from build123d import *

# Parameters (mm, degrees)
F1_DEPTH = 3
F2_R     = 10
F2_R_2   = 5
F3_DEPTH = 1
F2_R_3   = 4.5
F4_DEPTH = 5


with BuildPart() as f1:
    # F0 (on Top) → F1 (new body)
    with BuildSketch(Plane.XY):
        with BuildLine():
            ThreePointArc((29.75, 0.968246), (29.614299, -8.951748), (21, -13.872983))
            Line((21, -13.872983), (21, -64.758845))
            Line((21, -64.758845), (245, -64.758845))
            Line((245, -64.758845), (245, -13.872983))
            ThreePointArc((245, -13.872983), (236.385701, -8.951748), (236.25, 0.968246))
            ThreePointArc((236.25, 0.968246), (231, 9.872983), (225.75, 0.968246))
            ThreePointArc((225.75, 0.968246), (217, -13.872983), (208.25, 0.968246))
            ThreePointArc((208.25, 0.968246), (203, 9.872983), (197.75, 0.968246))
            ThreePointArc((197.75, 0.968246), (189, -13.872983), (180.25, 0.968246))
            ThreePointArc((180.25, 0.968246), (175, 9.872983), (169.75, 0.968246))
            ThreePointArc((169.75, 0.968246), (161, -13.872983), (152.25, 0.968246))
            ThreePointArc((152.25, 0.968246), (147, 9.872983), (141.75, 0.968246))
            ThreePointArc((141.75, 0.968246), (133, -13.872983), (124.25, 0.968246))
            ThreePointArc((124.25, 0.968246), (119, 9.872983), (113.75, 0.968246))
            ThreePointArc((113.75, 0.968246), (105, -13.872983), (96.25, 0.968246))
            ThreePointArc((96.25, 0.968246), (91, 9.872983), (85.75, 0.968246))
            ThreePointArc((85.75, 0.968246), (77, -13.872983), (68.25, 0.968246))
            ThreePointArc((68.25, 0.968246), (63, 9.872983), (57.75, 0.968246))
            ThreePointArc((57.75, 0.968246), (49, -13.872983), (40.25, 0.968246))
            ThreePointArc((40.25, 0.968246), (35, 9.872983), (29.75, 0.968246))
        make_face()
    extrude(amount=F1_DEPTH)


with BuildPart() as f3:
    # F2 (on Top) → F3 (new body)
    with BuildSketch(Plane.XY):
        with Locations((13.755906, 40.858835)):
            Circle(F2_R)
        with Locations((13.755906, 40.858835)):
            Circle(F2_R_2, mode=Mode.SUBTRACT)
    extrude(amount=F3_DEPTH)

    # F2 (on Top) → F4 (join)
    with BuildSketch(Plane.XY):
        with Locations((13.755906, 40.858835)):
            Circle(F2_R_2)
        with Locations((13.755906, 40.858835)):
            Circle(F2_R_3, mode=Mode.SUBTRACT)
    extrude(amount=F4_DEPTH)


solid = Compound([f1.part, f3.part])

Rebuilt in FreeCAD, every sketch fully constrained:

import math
import FreeCAD as App
import Part
import Sketcher

doc = App.newDocument("Part")
body = doc.addObject("PartDesign::Body", "Body")

# Sketch on XY plane
sketch1 = body.newObject("Sketcher::SketchObject", "Sketch")
sketch1.AttachmentSupport = (doc.getObject("XY_Plane"), [""])
sketch1.MapMode = "FlatFace"
sketch1.addGeometry(Part.ArcOfCircle(Part.Circle(App.Vector(21, -3.872983, 0), App.Vector(0, 0, 1), 10), math.radians(-90.000001), math.radians(28.955025)), False)
sketch1.addGeometry(Part.LineSegment(App.Vector(21, -13.872983, 0), App.Vector(21, -64.758845, 0)), False)
sketch1.addGeometry(Part.LineSegment(App.Vector(21, -64.758845, 0), App.Vector(245, -64.758845, 0)), False)
sketch1.addGeometry(Part.LineSegment(App.Vector(245, -64.758845, 0), App.Vector(245, -13.872983, 0)), False)
sketch1.addGeometry(Part.ArcOfCircle(Part.Circle(App.Vector(245, -3.872983, 0), App.Vector(0, 0, 1), 10), math.radians(151.044975), math.radians(270.000001)), False)
sketch1.addGeometry(Part.ArcOfCircle(Part.Circle(App.Vector(231, 3.872983, 0), App.Vector(0, 0, 1), 6), math.radians(-28.955022), math.radians(208.955022)), False)
sketch1.addGeometry(Part.ArcOfCircle(Part.Circle(App.Vector(217, -3.872983, 0), App.Vector(0, 0, 1), 10), math.radians(151.044976), math.radians(388.955024)), False)
sketch1.addGeometry(Part.ArcOfCircle(Part.Circle(App.Vector(203, 3.872983, 0), App.Vector(0, 0, 1), 6), math.radians(-28.955022), math.radians(208.955022)), False)
sketch1.addGeometry(Part.ArcOfCircle(Part.Circle(App.Vector(189, -3.872983, 0), App.Vector(0, 0, 1), 10), math.radians(151.044976), math.radians(388.955024)), False)
sketch1.addGeometry(Part.ArcOfCircle(Part.Circle(App.Vector(175, 3.872983, 0), App.Vector(0, 0, 1), 6), math.radians(-28.955022), math.radians(208.955022)), False)
sketch1.addGeometry(Part.ArcOfCircle(Part.Circle(App.Vector(161, -3.872983, 0), App.Vector(0, 0, 1), 10), math.radians(151.044976), math.radians(388.955024)), False)
sketch1.addGeometry(Part.ArcOfCircle(Part.Circle(App.Vector(147, 3.872983, 0), App.Vector(0, 0, 1), 6), math.radians(-28.955022), math.radians(208.955022)), False)
sketch1.addGeometry(Part.ArcOfCircle(Part.Circle(App.Vector(133, -3.872983, 0), App.Vector(0, 0, 1), 10), math.radians(151.044976), math.radians(388.955024)), False)
sketch1.addGeometry(Part.ArcOfCircle(Part.Circle(App.Vector(119, 3.872983, 0), App.Vector(0, 0, 1), 6), math.radians(-28.955022), math.radians(208.955022)), False)
sketch1.addGeometry(Part.ArcOfCircle(Part.Circle(App.Vector(105, -3.872983, 0), App.Vector(0, 0, 1), 10), math.radians(151.044976), math.radians(388.955024)), False)
sketch1.addGeometry(Part.ArcOfCircle(Part.Circle(App.Vector(91, 3.872983, 0), App.Vector(0, 0, 1), 6), math.radians(-28.955022), math.radians(208.955022)), False)
sketch1.addGeometry(Part.ArcOfCircle(Part.Circle(App.Vector(77, -3.872983, 0), App.Vector(0, 0, 1), 10), math.radians(151.044976), math.radians(388.955024)), False)
sketch1.addGeometry(Part.ArcOfCircle(Part.Circle(App.Vector(63, 3.872983, 0), App.Vector(0, 0, 1), 6), math.radians(-28.955022), math.radians(208.955022)), False)
sketch1.addGeometry(Part.ArcOfCircle(Part.Circle(App.Vector(49, -3.872983, 0), App.Vector(0, 0, 1), 10), math.radians(151.044976), math.radians(388.955024)), False)
sketch1.addGeometry(Part.ArcOfCircle(Part.Circle(App.Vector(35, 3.872983, 0), App.Vector(0, 0, 1), 6), math.radians(-28.955022), math.radians(208.955022)), False)
sketch1.addConstraint(Sketcher.Constraint("Coincident", 0, 1, 1, 1))
sketch1.addConstraint(Sketcher.Constraint("Coincident", 1, 2, 2, 1))
sketch1.addConstraint(Sketcher.Constraint("Coincident", 2, 2, 3, 1))
sketch1.addConstraint(Sketcher.Constraint("Coincident", 3, 2, 4, 2))
sketch1.addConstraint(Sketcher.Constraint("Tangent", 4, 1, 5, 1))
sketch1.addConstraint(Sketcher.Constraint("Tangent", 5, 2, 6, 2))
sketch1.addConstraint(Sketcher.Constraint("Tangent", 6, 1, 7, 1))
sketch1.addConstraint(Sketcher.Constraint("Tangent", 7, 2, 8, 2))
sketch1.addConstraint(Sketcher.Constraint("Tangent", 8, 1, 9, 1))
sketch1.addConstraint(Sketcher.Constraint("Tangent", 9, 2, 10, 2))
sketch1.addConstraint(Sketcher.Constraint("Tangent", 10, 1, 11, 1))
sketch1.addConstraint(Sketcher.Constraint("Tangent", 11, 2, 12, 2))
sketch1.addConstraint(Sketcher.Constraint("Tangent", 12, 1, 13, 1))
sketch1.addConstraint(Sketcher.Constraint("Tangent", 13, 2, 14, 2))
sketch1.addConstraint(Sketcher.Constraint("Tangent", 14, 1, 15, 1))
sketch1.addConstraint(Sketcher.Constraint("Tangent", 15, 2, 16, 2))
sketch1.addConstraint(Sketcher.Constraint("Tangent", 16, 1, 17, 1))
sketch1.addConstraint(Sketcher.Constraint("Tangent", 17, 2, 18, 2))
sketch1.addConstraint(Sketcher.Constraint("Tangent", 18, 1, 19, 1))
sketch1.addConstraint(Sketcher.Constraint("Tangent", 19, 2, 0, 2))
sketch1.addConstraint(Sketcher.Constraint("Vertical", 1))
sketch1.addConstraint(Sketcher.Constraint("Horizontal", 2))
sketch1.addConstraint(Sketcher.Constraint("Vertical", 3))
sketch1.addConstraint(Sketcher.Constraint("Equal", 0, 4))
sketch1.addConstraint(Sketcher.Constraint("Equal", 4, 6))
sketch1.addConstraint(Sketcher.Constraint("Equal", 5, 7))
sketch1.addConstraint(Sketcher.Constraint("Equal", 6, 8))
sketch1.addConstraint(Sketcher.Constraint("Equal", 7, 9))
sketch1.addConstraint(Sketcher.Constraint("Equal", 8, 10))
sketch1.addConstraint(Sketcher.Constraint("Equal", 9, 11))
sketch1.addConstraint(Sketcher.Constraint("Equal", 10, 12))
sketch1.addConstraint(Sketcher.Constraint("Equal", 11, 13))
sketch1.addConstraint(Sketcher.Constraint("Equal", 12, 14))
sketch1.addConstraint(Sketcher.Constraint("Equal", 13, 15))
sketch1.addConstraint(Sketcher.Constraint("Equal", 14, 16))
sketch1.addConstraint(Sketcher.Constraint("Equal", 15, 17))
sketch1.addConstraint(Sketcher.Constraint("Equal", 16, 18))
sketch1.addConstraint(Sketcher.Constraint("Equal", 17, 19))
sketch1.addConstraint(Sketcher.Constraint("Horizontal", 0, 3, 4, 3))
sketch1.addConstraint(Sketcher.Constraint("Horizontal", 4, 3, 6, 3))
sketch1.addConstraint(Sketcher.Constraint("Horizontal", 5, 3, 7, 3))
sketch1.addConstraint(Sketcher.Constraint("Horizontal", 6, 3, 8, 3))
sketch1.addConstraint(Sketcher.Constraint("Horizontal", 7, 3, 9, 3))
sketch1.addConstraint(Sketcher.Constraint("Horizontal", 8, 3, 10, 3))
sketch1.addConstraint(Sketcher.Constraint("Horizontal", 9, 3, 11, 3))
sketch1.addConstraint(Sketcher.Constraint("Horizontal", 10, 3, 12, 3))
sketch1.addConstraint(Sketcher.Constraint("Horizontal", 11, 3, 13, 3))
sketch1.addConstraint(Sketcher.Constraint("Horizontal", 12, 3, 14, 3))
sketch1.addConstraint(Sketcher.Constraint("Horizontal", 13, 3, 15, 3))
sketch1.addConstraint(Sketcher.Constraint("Horizontal", 14, 3, 16, 3))
sketch1.addConstraint(Sketcher.Constraint("Horizontal", 15, 3, 17, 3))
sketch1.addConstraint(Sketcher.Constraint("Horizontal", 16, 3, 18, 3))
sketch1.addConstraint(Sketcher.Constraint("Horizontal", 17, 3, 19, 3))
sketch1.addConstraint(Sketcher.Constraint("Vertical", 4, 3, 2, 2))
sketch1.addConstraint(Sketcher.Constraint("Radius", 0, 10.0))
sketch1.addConstraint(Sketcher.Constraint("Radius", 5, 6.0))
sketch1.addConstraint(Sketcher.Constraint("DistanceX", 2, 1, 2, 2, 224.0))
sketch1.addConstraint(Sketcher.Constraint("DistanceX", -1, 1, 0, 3, 21.0))
sketch1.addConstraint(Sketcher.Constraint("DistanceX", -1, 1, 4, 3, 245.0))
sketch1.addConstraint(Sketcher.Constraint("DistanceY", 1, 2, 1, 1, 50.885862))
sketch1.addConstraint(Sketcher.Constraint("DistanceY", 0, 3, -1, 1, 3.872983))
pad1 = body.newObject("PartDesign::Pad", "Pad")
pad1.Profile = sketch1
pad1.Length = 3
body2 = doc.addObject("PartDesign::Body", "Body001")

# Sketch on XY plane
sketch2 = body2.newObject("Sketcher::SketchObject", "Sketch001")
sketch2.AttachmentSupport = (doc.getObject("XY_Plane001"), [""])
sketch2.MapMode = "FlatFace"
sketch2.addGeometry(Part.Circle(App.Vector(13.755906, 40.858835, 0), App.Vector(0, 0, 1), 10), False)
sketch2.addGeometry(Part.Circle(App.Vector(13.755906, 40.858835, 0), App.Vector(0, 0, 1), 5), False)
sketch2.addConstraint(Sketcher.Constraint("Coincident", 1, 3, 0, 3))
sketch2.addConstraint(Sketcher.Constraint("Diameter", 0, 20.0))
sketch2.addConstraint(Sketcher.Constraint("Diameter", 1, 10.0))
sketch2.addConstraint(Sketcher.Constraint("DistanceX", -1, 1, 0, 3, 13.755906))
sketch2.addConstraint(Sketcher.Constraint("DistanceY", -1, 1, 0, 3, 40.858835))
pad2 = body2.newObject("PartDesign::Pad", "Pad001")
pad2.Profile = sketch2
pad2.Length = 1

# Sketch on XY plane
sketch3 = body2.newObject("Sketcher::SketchObject", "Sketch002")
sketch3.AttachmentSupport = (doc.getObject("XY_Plane001"), [""])
sketch3.MapMode = "FlatFace"
sketch3.addGeometry(Part.Circle(App.Vector(13.755906, 40.858835, 0), App.Vector(0, 0, 1), 5), False)
sketch3.addGeometry(Part.Circle(App.Vector(13.755906, 40.858835, 0), App.Vector(0, 0, 1), 4.5), False)
sketch3.addConstraint(Sketcher.Constraint("Coincident", 1, 3, 0, 3))
sketch3.addConstraint(Sketcher.Constraint("Diameter", 0, 10.0))
sketch3.addConstraint(Sketcher.Constraint("Diameter", 1, 9.0))
sketch3.addConstraint(Sketcher.Constraint("DistanceX", -1, 1, 0, 3, 13.755906))
sketch3.addConstraint(Sketcher.Constraint("DistanceY", -1, 1, 0, 3, 40.858835))
pad3 = body2.newObject("PartDesign::Pad", "Pad002")
pad3.Profile = sketch3
pad3.Length = 5

doc.recompute()
